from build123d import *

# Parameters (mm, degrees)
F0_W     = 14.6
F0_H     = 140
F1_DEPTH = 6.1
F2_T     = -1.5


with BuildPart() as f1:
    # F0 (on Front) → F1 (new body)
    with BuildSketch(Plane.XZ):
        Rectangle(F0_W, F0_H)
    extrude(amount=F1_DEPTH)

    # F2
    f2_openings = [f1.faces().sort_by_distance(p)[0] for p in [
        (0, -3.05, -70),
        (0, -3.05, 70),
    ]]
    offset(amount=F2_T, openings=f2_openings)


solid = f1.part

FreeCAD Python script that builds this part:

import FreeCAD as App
import Part
import Sketcher
from FreeCAD import Vector


def faces_at(feature, points):
    """Names of the faces that lie closest to the given points."""
    faces = feature.Shape.Faces
    near = lambda p: min(range(len(faces)), key=lambda i: faces[i].distToShape(Part.Vertex(*p))[0])
    return sorted({f"Face{near(p) + 1}" for p in points})


def add_polygon(sketch, points):
    """Adds a closed chain of lines whose ends are joined by coincident constraints."""
    first, n = sketch.GeometryCount, len(points)
    for a, b in zip(points, points[1:] + points[:1]):
        sketch.addGeometry(Part.LineSegment(App.Vector(*a, 0), App.Vector(*b, 0)), False)
    for i in range(n):
        sketch.addConstraint(Sketcher.Constraint("Coincident", first + i, 2, first + (i + 1) % n, 1))

doc = App.newDocument("Part")
body = doc.addObject("PartDesign::Body", "Body")

# Sketch on XZ plane
sketch1 = body.newObject("Sketcher::SketchObject", "Sketch")
sketch1.AttachmentSupport = (doc.getObject("XZ_Plane"), [""])
sketch1.MapMode = "FlatFace"
add_polygon(sketch1, [(-7.3, 70), (-7.3, -70), (7.3, -70), (7.3, 70)])  # lines 0-3
sketch1.addConstraint(Sketcher.Constraint("Vertical", 0))
sketch1.addConstraint(Sketcher.Constraint("Horizontal", 1))
sketch1.addConstraint(Sketcher.Constraint("Vertical", 2))
sketch1.addConstraint(Sketcher.Constraint("Horizontal", 3))
sketch1.addConstraint(Sketcher.Constraint("Symmetric", 0, 2, 2, 2, -1, 1))
sketch1.addConstraint(Sketcher.Constraint("DistanceY", 0, 2, 0, 1, 140.0))
sketch1.addConstraint(Sketcher.Constraint("DistanceX", 1, 1, 1, 2, 14.6))
pad1 = body.newObject("PartDesign::Pad", "Pad")
pad1.Profile = sketch1
pad1.Length = 6.1
doc.recompute()

thickness = body.newObject("PartDesign::Thickness", "Thickness")
thickness.Base = (pad1, faces_at(pad1, [(0, -3.05, -70), (0, -3.05, 70)]))
thickness.Value = 1.5
thickness.Reversed = True
thickness.Join = "Arc"

doc.recompute()
